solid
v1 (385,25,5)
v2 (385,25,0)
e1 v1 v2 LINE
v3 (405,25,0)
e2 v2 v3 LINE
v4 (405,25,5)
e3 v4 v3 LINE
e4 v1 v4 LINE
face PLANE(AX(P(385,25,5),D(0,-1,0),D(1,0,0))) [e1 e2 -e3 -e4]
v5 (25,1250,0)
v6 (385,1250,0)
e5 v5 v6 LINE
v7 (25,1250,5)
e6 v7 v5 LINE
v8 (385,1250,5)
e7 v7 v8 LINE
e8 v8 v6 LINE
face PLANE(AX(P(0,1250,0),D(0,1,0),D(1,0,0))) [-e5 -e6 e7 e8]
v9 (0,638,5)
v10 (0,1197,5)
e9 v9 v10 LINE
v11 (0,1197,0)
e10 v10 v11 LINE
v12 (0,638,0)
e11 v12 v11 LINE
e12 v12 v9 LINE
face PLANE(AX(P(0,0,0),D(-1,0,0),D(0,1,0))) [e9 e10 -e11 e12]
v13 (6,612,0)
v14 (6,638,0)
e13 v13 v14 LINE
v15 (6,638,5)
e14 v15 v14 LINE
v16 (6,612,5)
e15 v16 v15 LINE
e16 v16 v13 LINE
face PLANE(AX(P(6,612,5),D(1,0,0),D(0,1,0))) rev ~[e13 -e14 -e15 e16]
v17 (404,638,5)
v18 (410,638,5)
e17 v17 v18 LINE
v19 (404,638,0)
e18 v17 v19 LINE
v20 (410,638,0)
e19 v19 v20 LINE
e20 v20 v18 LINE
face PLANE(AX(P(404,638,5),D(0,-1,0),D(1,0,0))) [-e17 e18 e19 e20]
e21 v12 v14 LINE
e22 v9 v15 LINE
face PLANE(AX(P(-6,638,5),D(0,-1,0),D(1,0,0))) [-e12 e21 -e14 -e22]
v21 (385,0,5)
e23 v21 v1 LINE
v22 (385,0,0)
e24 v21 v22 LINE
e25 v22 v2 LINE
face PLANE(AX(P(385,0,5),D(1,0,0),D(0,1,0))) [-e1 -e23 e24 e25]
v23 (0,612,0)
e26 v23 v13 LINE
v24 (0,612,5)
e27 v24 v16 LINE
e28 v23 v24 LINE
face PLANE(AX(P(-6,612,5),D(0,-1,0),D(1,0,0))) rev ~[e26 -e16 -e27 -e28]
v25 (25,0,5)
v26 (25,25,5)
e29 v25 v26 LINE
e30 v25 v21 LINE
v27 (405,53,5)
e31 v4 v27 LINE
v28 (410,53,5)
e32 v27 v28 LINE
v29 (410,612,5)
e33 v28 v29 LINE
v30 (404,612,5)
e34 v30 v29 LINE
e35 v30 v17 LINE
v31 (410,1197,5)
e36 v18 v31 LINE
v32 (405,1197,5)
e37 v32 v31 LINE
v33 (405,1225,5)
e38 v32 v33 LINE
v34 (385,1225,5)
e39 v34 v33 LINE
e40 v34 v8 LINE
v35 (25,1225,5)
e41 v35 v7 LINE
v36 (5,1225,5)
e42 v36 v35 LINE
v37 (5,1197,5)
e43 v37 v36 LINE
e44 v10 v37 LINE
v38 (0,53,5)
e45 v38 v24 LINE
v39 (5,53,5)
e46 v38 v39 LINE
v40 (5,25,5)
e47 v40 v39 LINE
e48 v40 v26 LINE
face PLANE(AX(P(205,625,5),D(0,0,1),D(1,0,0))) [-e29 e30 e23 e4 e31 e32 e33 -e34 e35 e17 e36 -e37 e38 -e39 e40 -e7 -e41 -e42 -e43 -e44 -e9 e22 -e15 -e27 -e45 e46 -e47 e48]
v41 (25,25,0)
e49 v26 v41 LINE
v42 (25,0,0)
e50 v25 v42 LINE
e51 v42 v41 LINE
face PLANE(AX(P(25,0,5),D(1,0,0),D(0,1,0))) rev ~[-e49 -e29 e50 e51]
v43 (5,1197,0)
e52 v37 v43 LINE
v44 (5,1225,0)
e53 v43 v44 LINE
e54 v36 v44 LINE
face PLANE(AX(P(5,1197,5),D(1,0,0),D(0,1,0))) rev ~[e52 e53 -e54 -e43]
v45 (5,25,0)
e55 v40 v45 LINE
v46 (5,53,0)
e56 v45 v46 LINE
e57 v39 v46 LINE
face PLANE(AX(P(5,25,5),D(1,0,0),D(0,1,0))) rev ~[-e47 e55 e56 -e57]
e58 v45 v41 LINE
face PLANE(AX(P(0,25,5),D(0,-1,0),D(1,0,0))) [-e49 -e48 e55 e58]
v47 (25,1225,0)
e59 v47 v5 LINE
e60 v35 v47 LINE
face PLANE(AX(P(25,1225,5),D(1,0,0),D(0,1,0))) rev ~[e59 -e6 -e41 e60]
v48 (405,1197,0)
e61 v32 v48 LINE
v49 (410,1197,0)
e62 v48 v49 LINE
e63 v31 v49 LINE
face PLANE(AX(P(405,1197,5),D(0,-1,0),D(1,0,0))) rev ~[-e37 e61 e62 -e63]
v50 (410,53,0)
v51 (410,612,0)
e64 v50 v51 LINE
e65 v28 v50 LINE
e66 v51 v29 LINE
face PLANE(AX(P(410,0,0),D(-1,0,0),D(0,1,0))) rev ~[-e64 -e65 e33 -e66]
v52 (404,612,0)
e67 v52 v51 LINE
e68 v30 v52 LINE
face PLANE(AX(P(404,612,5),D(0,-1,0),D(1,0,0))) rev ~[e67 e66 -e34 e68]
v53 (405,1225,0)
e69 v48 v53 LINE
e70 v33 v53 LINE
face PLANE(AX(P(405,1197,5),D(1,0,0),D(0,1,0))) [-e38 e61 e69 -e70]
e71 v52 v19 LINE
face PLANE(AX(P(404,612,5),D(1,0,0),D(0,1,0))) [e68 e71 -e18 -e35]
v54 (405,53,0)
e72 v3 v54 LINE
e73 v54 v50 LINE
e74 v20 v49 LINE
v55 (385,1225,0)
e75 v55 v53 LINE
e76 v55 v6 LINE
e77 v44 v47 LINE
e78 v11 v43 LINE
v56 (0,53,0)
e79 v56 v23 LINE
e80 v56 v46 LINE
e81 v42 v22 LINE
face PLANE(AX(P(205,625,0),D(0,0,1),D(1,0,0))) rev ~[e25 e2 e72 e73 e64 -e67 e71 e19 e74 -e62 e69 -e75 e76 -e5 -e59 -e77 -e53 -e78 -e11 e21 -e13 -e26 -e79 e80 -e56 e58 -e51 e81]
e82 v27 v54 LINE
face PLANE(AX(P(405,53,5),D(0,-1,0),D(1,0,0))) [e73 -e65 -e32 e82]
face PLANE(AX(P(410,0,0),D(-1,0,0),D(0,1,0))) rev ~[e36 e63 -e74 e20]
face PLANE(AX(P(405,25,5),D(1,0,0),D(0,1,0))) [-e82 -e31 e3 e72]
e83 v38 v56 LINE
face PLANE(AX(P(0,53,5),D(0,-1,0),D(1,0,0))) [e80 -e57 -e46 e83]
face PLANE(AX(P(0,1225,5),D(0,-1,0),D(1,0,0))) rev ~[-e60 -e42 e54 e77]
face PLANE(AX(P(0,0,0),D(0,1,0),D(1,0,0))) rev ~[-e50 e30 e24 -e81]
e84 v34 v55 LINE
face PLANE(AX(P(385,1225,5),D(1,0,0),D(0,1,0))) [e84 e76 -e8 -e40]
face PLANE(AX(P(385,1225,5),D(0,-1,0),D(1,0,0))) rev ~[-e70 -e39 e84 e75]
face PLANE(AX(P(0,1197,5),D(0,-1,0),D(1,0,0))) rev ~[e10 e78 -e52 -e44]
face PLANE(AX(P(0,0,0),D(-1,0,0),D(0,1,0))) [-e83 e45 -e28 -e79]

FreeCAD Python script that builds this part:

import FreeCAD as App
import Part
import Sketcher
Q = App.Units.Quantity


def add_polygon(sketch, points):
    """Adds a closed chain of lines whose ends are joined by coincident constraints."""
    first, n = sketch.GeometryCount, len(points)
    for a, b in zip(points, points[1:] + points[:1]):
        sketch.addGeometry(Part.LineSegment(App.Vector(*a, 0), App.Vector(*b, 0)), False)
    for i in range(n):
        sketch.addConstraint(Sketcher.Constraint("Coincident", first + i, 2, first + (i + 1) % n, 1))

doc = App.newDocument("Part")
body = doc.addObject("PartDesign::Body", "Body")

sketch1 = doc.addObject("Sketcher::SketchObject", "Sketch")
body.addObject(sketch1)
sketch1.AttachmentSupport = (doc.XY_Plane, [""])
sketch1.MapMode = "FlatFace"
add_polygon(sketch1, [(0, 1250), (0, 0), (410, 0), (410, 1250)])
sketch1.addConstraint([
    Sketcher.Constraint("Vertical", 0),
    Sketcher.Constraint("Horizontal", 1),
    Sketcher.Constraint("Vertical", 2),
    Sketcher.Constraint("Horizontal", 3),
    Sketcher.Constraint("Coincident", 0, 2, -1, 1),
    Sketcher.Constraint("DistanceX", 1, 1, 1, 2, Q("410 mm")),
    Sketcher.Constraint("DistanceY", 0, 2, 0, 1, Q("1250 mm")),
])
pad1 = doc.addObject("PartDesign::Pad", "Pad")
body.addObject(pad1)
pad1.Profile = sketch1
pad1.Length = 5

sketch2 = doc.addObject("Sketcher::SketchObject", "Sketch001")
body.addObject(sketch2)
sketch2.AttachmentSupport = (doc.XY_Plane, [""])
sketch2.MapMode = "FlatFace"
sketch2.AttachmentOffset = App.Placement(App.Vector(0, 0, 5), App.Rotation())
add_polygon(sketch2, [(0, 25), (0, 0), (25, 0), (25, 25)])
sketch2.addConstraint([
    Sketcher.Constraint("Vertical", 0),
    Sketcher.Constraint("Horizontal", 1),
    Sketcher.Constraint("Vertical", 2),
    Sketcher.Constraint("Horizontal", 3),
    Sketcher.Constraint("Coincident", 0, 2, -1, 1),
    Sketcher.Constraint("Equal", 3, 0),
    Sketcher.Constraint("DistanceX", 1, 1, 1, 2, Q("25 mm")),
])
pocket1 = doc.addObject("PartDesign::Pocket", "Pocket")
body.addObject(pocket1)
pocket1.Profile = sketch2
pocket1.Length = 25

sketch3 = doc.addObject("Sketcher::SketchObject", "Sketch002")
body.addObject(sketch3)
sketch3.AttachmentSupport = (doc.XY_Plane, [""])
sketch3.MapMode = "FlatFace"
sketch3.AttachmentOffset = App.Placement(App.Vector(0, 0, 5), App.Rotation())
add_polygon(sketch3, [(385, 25), (385, 0), (410, 0), (410, 25)])
sketch3.addConstraint([
    Sketcher.Constraint("Vertical", 0),
    Sketcher.Constraint("Horizontal", 1),
    Sketcher.Constraint("Vertical", 2),
    Sketcher.Constraint("Horizontal", 3),
    Sketcher.Constraint("PointOnObject", 0, 2, -1),
    Sketcher.Constraint("Equal", 3, 0),
    Sketcher.Constraint("DistanceX", 1, 1, 1, 2, Q("25 mm")),
    Sketcher.Constraint("DistanceX", -1, 1, 0, 2, Q("385 mm")),
])
pocket2 = doc.addObject("PartDesign::Pocket", "Pocket001")
body.addObject(pocket2)
pocket2.Profile = sketch3
pocket2.Length = 25

sketch4 = doc.addObject("Sketcher::SketchObject", "Sketch003")
body.addObject(sketch4)
sketch4.AttachmentSupport = (doc.XY_Plane, [""])
sketch4.MapMode = "FlatFace"
sketch4.AttachmentOffset = App.Placement(App.Vector(0, 0, 5), App.Rotation())
add_polygon(sketch4, [(385, 1250), (385, 1225), (410, 1225), (410, 1250)])
sketch4.addConstraint([
    Sketcher.Constraint("Vertical", 0),
    Sketcher.Constraint("Horizontal", 1),
    Sketcher.Constraint("Vertical", 2),
    Sketcher.Constraint("Horizontal", 3),
    Sketcher.Constraint("Equal", 3, 0),
    Sketcher.Constraint("DistanceX", 1, 1, 1, 2, Q("25 mm")),
    Sketcher.Constraint("DistanceX", -1, 1, 0, 2, Q("385 mm")),
    Sketcher.Constraint("DistanceY", -1, 1, 0, 2, Q("1225 mm")),
])
pocket3 = doc.addObject("PartDesign::Pocket", "Pocket002")
body.addObject(pocket3)
pocket3.Profile = sketch4
pocket3.Length = 25

sketch5 = doc.addObject("Sketcher::SketchObject", "Sketch004")
body.addObject(sketch5)
sketch5.AttachmentSupport = (doc.XY_Plane, [""])
sketch5.MapMode = "FlatFace"
sketch5.AttachmentOffset = App.Placement(App.Vector(0, 0, 5), App.Rotation())
add_polygon(sketch5, [(0, 1250), (0, 1225), (25, 1225), (25, 1250)])
sketch5.addConstraint([
    Sketcher.Constraint("Vertical", 0),
    Sketcher.Constraint("Horizontal", 1),
    Sketcher.Constraint("Vertical", 2),
    Sketcher.Constraint("Horizontal", 3),
    Sketcher.Constraint("PointOnObject", 0, 2, -2),
    Sketcher.Constraint("Equal", 3, 0),
    Sketcher.Constraint("DistanceX", 1, 1, 1, 2, Q("25 mm")),
    Sketcher.Constraint("DistanceY", -1, 1, 0, 2, Q("1225 mm")),
])
pocket4 = doc.addObject("PartDesign::Pocket", "Pocket003")
body.addObject(pocket4)
pocket4.Profile = sketch5
pocket4.Length = 25

sketch6 = doc.addObject("Sketcher::SketchObject", "Sketch005")
body.addObject(sketch6)
sketch6.AttachmentSupport = (doc.XY_Plane, [""])
sketch6.MapMode = "FlatFace"
sketch6.AttachmentOffset = App.Placement(App.Vector(0, 0, 5), App.Rotation())
add_polygon(sketch6, [(-6, 638), (-6, 612), (6, 612), (6, 638)])
sketch6.addConstraint([
    Sketcher.Constraint("Vertical", 0),
    Sketcher.Constraint("Horizontal", 1),
    Sketcher.Constraint("Vertical", 2),
    Sketcher.Constraint("Horizontal", 3),
    Sketcher.Constraint("DistanceX", 1, 1, 1, 2, Q("12 mm")),
    Sketcher.Constraint("DistanceY", 0, 2, 0, 1, Q("26 mm")),
    Sketcher.Constraint("DistanceX", 0, 2, -1, 1, Q("6 mm")),
    Sketcher.Constraint("DistanceY", -1, 1, 0, 2, Q("612 mm")),
])
pocket5 = doc.addObject("PartDesign::Pocket", "Pocket004")
body.addObject(pocket5)
pocket5.Profile = sketch6
pocket5.Length = 25

sketch7 = doc.addObject("Sketcher::SketchObject", "Sketch006")
body.addObject(sketch7)
sketch7.AttachmentSupport = (doc.XY_Plane, [""])
sketch7.MapMode = "FlatFace"
sketch7.AttachmentOffset = App.Placement(App.Vector(0, 0, 5), App.Rotation())
add_polygon(sketch7, [(404, 638), (404, 612), (416, 612), (416, 638)])
sketch7.addConstraint([
    Sketcher.Constraint("Vertical", 0),
    Sketcher.Constraint("Horizontal", 1),
    Sketcher.Constraint("Vertical", 2),
    Sketcher.Constraint("Horizontal", 3),
    Sketcher.Constraint("DistanceX", 1, 1, 1, 2, Q("12 mm")),
    Sketcher.Constraint("DistanceY", 0, 2, 0, 1, Q("26 mm")),
    Sketcher.Constraint("DistanceX", -1, 1, 0, 2, Q("404 mm")),
    Sketcher.Constraint("DistanceY", -1, 1, 0, 2, Q("612 mm")),
])
pocket6 = doc.addObject("PartDesign::Pocket", "Pocket005")
body.addObject(pocket6)
pocket6.Profile = sketch7
pocket6.Length = 25

sketch8 = doc.addObject("Sketcher::SketchObject", "Sketch007")
body.addObject(sketch8)
sketch8.AttachmentSupport = (doc.XY_Plane, [""])
sketch8.MapMode = "FlatFace"
sketch8.AttachmentOffset = App.Placement(App.Vector(0, 0, 5), App.Rotation())
add_polygon(sketch8, [(405, 53), (405, 25), (410, 25), (410, 53)])
sketch8.addConstraint([
    Sketcher.Constraint("Vertical", 0),
    Sketcher.Constraint("Horizontal", 1),
    Sketcher.Constraint("Vertical", 2),
    Sketcher.Constraint("Horizontal", 3),
    Sketcher.Constraint("DistanceX", 1, 1, 1, 2, Q("5 mm")),
    Sketcher.Constraint("DistanceY", 0, 2, 0, 1, Q("28 mm")),
    Sketcher.Constraint("DistanceX", -1, 1, 0, 2, Q("405 mm")),
    Sketcher.Constraint("DistanceY", -1, 1, 0, 2, Q("25 mm")),
])
pocket7 = doc.addObject("PartDesign::Pocket", "Pocket006")
body.addObject(pocket7)
pocket7.Profile = sketch8
pocket7.Length = 25

sketch9 = doc.addObject("Sketcher::SketchObject", "Sketch008")
body.addObject(sketch9)
sketch9.AttachmentSupport = (doc.XY_Plane, [""])
sketch9.MapMode = "FlatFace"
sketch9.AttachmentOffset = App.Placement(App.Vector(0, 0, 5), App.Rotation())
add_polygon(sketch9, [(405, 1225), (405, 1197), (410, 1197), (410, 1225)])
sketch9.addConstraint([
    Sketcher.Constraint("Vertical", 0),
    Sketcher.Constraint("Horizontal", 1),
    Sketcher.Constraint("Vertical", 2),
    Sketcher.Constraint("Horizontal", 3),
    Sketcher.Constraint("DistanceX", 1, 1, 1, 2, Q("5 mm")),
    Sketcher.Constraint("DistanceY", 0, 2, 0, 1, Q("28 mm")),
    Sketcher.Constraint("DistanceX", -1, 1, 0, 2, Q("405 mm")),
    Sketcher.Constraint("DistanceY", -1, 1, 0, 2, Q("1197 mm")),
])
pocket8 = doc.addObject("PartDesign::Pocket", "Pocket007")
body.addObject(pocket8)
pocket8.Profile = sketch9
pocket8.Length = 25

sketch10 = doc.addObject("Sketcher::SketchObject", "Sketch009")
body.addObject(sketch10)
sketch10.AttachmentSupport = (doc.XY_Plane, [""])
sketch10.MapMode = "FlatFace"
sketch10.AttachmentOffset = App.Placement(App.Vector(0, 0, 5), App.Rotation())
add_polygon(sketch10, [(0, 1225), (0, 1197), (5, 1197), (5, 1225)])
sketch10.addConstraint([
    Sketcher.Constraint("Vertical", 0),
    Sketcher.Constraint("Horizontal", 1),
    Sketcher.Constraint("Vertical", 2),
    Sketcher.Constraint("Horizontal", 3),
    Sketcher.Constraint("PointOnObject", 0, 2, -2),
    Sketcher.Constraint("DistanceX", 1, 1, 1, 2, Q("5 mm")),
    Sketcher.Constraint("DistanceY", 0, 2, 0, 1, Q("28 mm")),
    Sketcher.Constraint("DistanceY", -1, 1, 0, 2, Q("1197 mm")),
])
pocket9 = doc.addObject("PartDesign::Pocket", "Pocket008")
body.addObject(pocket9)
pocket9.Profile = sketch10
pocket9.Length = 25

sketch11 = doc.addObject("Sketcher::SketchObject", "Sketch010")
body.addObject(sketch11)
sketch11.AttachmentSupport = (doc.XY_Plane, [""])
sketch11.MapMode = "FlatFace"
sketch11.AttachmentOffset = App.Placement(App.Vector(0, 0, 5), App.Rotation())
add_polygon(sketch11, [(0, 53), (0, 25), (5, 25), (5, 53)])
sketch11.addConstraint([
    Sketcher.Constraint("Vertical", 0),
    Sketcher.Constraint("Horizontal", 1),
    Sketcher.Constraint("Vertical", 2),
    Sketcher.Constraint("Horizontal", 3),
    Sketcher.Constraint("PointOnObject", 0, 2, -2),
    Sketcher.Constraint("DistanceX", 1, 1, 1, 2, Q("5 mm")),
    Sketcher.Constraint("DistanceY", 0, 2, 0, 1, Q("28 mm")),
    Sketcher.Constraint("DistanceY", -1, 1, 0, 2, Q("25 mm")),
])
pocket10 = doc.addObject("PartDesign::Pocket", "Pocket009")
body.addObject(pocket10)
pocket10.Profile = sketch11
pocket10.Length = 25

doc.recompute()
